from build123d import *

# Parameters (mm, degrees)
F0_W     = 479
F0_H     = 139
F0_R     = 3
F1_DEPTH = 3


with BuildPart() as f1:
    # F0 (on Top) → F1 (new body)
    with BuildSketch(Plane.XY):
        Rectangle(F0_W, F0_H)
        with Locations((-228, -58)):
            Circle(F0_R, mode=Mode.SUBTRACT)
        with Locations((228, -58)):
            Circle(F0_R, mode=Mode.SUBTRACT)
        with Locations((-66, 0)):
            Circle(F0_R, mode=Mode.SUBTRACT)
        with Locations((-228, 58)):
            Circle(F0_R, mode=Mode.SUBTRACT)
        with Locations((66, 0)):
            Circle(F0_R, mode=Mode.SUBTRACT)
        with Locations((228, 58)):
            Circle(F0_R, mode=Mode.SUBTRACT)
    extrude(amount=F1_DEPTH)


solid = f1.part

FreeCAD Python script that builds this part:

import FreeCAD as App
import Part
import Sketcher
from FreeCAD import Vector


def add_polygon(sketch, points):
    """Adds a closed chain of lines whose ends are joined by coincident constraints."""
    first, n = sketch.GeometryCount, len(points)
    for a, b in zip(points, points[1:] + points[:1]):
        sketch.addGeometry(Part.LineSegment(App.Vector(*a, 0), App.Vector(*b, 0)), False)
    for i in range(n):
        sketch.addConstraint(Sketcher.Constraint("Coincident", first + i, 2, first + (i + 1) % n, 1))

doc = App.newDocument("Part")
body = doc.addObject("PartDesign::Body", "Body")

# Sketch on XY plane
sketch1 = body.newObject("Sketcher::SketchObject", "Sketch")
sketch1.AttachmentSupport = (doc.getObject("XY_Plane"), [""])
sketch1.MapMode = "FlatFace"
add_polygon(sketch1, [(-239.5, 69.5), (-239.5, -69.5), (239.5, -69.5), (239.5, 69.5)])  # lines 0-3
sketch1.addGeometry(Part.Circle(Vector(-228, -58, 0), Vector(0, 0, 1), 3), False)  # 4
sketch1.addGeometry(Part.Circle(Vector(228, -58, 0), Vector(0, 0, 1), 3), False)  # 5
sketch1.addGeometry(Part.Circle(Vector(-66, 0, 0), Vector(0, 0, 1), 3), False)  # 6
sketch1.addGeometry(Part.Circle(Vector(-228, 58, 0), Vector(0, 0, 1), 3), False)  # 7
sketch1.addGeometry(Part.Circle(Vector(66, 0, 0), Vector(0, 0, 1), 3), False)  # 8
sketch1.addGeometry(Part.Circle(Vector(228, 58, 0), Vector(0, 0, 1), 3), False)  # 9
sketch1.addConstraint([
    Sketcher.Constraint("Vertical", 0),
    Sketcher.Constraint("Horizontal", 1),
    Sketcher.Constraint("Vertical", 2),
    Sketcher.Constraint("Horizontal", 3),
    Sketcher.Constraint("Equal", 4, 5),
    Sketcher.Constraint("Equal", 5, 6),
    Sketcher.Constraint("Equal", 6, 7),
    Sketcher.Constraint("Equal", 7, 8),
    Sketcher.Constraint("Equal", 8, 9),
    Sketcher.Constraint("Symmetric", 5, 3, 7, 3, -1, 1),
    Sketcher.Constraint("Symmetric", 6, 3, 8, 3, -1, 1),
    Sketcher.Constraint("Symmetric", 4, 3, 9, 3, -1, 1),
    Sketcher.Constraint("Symmetric", 0, 2, 2, 2, -1, 1),
    Sketcher.Constraint("Symmetric", 4, 3, 5, 3, -2),
    Sketcher.Constraint("PointOnObject", 6, 3, -1),
    Sketcher.Constraint("Diameter", 4, 6.0),
    Sketcher.Constraint("DistanceX", 1, 1, 1, 2, 479.0),
    Sketcher.Constraint("DistanceY", 0, 2, 0, 1, 139.0),
    Sketcher.Constraint("DistanceX", 4, 3, -1, 1, 228.0),
    Sketcher.Constraint("DistanceY", 4, 3, -1, 1, 58.0),
    Sketcher.Constraint("DistanceX", 6, 3, -1, 1, 66.0),
])
pad1 = body.newObject("PartDesign::Pad", "Pad")
pad1.Profile = sketch1
pad1.Length = 3

doc.recompute()
